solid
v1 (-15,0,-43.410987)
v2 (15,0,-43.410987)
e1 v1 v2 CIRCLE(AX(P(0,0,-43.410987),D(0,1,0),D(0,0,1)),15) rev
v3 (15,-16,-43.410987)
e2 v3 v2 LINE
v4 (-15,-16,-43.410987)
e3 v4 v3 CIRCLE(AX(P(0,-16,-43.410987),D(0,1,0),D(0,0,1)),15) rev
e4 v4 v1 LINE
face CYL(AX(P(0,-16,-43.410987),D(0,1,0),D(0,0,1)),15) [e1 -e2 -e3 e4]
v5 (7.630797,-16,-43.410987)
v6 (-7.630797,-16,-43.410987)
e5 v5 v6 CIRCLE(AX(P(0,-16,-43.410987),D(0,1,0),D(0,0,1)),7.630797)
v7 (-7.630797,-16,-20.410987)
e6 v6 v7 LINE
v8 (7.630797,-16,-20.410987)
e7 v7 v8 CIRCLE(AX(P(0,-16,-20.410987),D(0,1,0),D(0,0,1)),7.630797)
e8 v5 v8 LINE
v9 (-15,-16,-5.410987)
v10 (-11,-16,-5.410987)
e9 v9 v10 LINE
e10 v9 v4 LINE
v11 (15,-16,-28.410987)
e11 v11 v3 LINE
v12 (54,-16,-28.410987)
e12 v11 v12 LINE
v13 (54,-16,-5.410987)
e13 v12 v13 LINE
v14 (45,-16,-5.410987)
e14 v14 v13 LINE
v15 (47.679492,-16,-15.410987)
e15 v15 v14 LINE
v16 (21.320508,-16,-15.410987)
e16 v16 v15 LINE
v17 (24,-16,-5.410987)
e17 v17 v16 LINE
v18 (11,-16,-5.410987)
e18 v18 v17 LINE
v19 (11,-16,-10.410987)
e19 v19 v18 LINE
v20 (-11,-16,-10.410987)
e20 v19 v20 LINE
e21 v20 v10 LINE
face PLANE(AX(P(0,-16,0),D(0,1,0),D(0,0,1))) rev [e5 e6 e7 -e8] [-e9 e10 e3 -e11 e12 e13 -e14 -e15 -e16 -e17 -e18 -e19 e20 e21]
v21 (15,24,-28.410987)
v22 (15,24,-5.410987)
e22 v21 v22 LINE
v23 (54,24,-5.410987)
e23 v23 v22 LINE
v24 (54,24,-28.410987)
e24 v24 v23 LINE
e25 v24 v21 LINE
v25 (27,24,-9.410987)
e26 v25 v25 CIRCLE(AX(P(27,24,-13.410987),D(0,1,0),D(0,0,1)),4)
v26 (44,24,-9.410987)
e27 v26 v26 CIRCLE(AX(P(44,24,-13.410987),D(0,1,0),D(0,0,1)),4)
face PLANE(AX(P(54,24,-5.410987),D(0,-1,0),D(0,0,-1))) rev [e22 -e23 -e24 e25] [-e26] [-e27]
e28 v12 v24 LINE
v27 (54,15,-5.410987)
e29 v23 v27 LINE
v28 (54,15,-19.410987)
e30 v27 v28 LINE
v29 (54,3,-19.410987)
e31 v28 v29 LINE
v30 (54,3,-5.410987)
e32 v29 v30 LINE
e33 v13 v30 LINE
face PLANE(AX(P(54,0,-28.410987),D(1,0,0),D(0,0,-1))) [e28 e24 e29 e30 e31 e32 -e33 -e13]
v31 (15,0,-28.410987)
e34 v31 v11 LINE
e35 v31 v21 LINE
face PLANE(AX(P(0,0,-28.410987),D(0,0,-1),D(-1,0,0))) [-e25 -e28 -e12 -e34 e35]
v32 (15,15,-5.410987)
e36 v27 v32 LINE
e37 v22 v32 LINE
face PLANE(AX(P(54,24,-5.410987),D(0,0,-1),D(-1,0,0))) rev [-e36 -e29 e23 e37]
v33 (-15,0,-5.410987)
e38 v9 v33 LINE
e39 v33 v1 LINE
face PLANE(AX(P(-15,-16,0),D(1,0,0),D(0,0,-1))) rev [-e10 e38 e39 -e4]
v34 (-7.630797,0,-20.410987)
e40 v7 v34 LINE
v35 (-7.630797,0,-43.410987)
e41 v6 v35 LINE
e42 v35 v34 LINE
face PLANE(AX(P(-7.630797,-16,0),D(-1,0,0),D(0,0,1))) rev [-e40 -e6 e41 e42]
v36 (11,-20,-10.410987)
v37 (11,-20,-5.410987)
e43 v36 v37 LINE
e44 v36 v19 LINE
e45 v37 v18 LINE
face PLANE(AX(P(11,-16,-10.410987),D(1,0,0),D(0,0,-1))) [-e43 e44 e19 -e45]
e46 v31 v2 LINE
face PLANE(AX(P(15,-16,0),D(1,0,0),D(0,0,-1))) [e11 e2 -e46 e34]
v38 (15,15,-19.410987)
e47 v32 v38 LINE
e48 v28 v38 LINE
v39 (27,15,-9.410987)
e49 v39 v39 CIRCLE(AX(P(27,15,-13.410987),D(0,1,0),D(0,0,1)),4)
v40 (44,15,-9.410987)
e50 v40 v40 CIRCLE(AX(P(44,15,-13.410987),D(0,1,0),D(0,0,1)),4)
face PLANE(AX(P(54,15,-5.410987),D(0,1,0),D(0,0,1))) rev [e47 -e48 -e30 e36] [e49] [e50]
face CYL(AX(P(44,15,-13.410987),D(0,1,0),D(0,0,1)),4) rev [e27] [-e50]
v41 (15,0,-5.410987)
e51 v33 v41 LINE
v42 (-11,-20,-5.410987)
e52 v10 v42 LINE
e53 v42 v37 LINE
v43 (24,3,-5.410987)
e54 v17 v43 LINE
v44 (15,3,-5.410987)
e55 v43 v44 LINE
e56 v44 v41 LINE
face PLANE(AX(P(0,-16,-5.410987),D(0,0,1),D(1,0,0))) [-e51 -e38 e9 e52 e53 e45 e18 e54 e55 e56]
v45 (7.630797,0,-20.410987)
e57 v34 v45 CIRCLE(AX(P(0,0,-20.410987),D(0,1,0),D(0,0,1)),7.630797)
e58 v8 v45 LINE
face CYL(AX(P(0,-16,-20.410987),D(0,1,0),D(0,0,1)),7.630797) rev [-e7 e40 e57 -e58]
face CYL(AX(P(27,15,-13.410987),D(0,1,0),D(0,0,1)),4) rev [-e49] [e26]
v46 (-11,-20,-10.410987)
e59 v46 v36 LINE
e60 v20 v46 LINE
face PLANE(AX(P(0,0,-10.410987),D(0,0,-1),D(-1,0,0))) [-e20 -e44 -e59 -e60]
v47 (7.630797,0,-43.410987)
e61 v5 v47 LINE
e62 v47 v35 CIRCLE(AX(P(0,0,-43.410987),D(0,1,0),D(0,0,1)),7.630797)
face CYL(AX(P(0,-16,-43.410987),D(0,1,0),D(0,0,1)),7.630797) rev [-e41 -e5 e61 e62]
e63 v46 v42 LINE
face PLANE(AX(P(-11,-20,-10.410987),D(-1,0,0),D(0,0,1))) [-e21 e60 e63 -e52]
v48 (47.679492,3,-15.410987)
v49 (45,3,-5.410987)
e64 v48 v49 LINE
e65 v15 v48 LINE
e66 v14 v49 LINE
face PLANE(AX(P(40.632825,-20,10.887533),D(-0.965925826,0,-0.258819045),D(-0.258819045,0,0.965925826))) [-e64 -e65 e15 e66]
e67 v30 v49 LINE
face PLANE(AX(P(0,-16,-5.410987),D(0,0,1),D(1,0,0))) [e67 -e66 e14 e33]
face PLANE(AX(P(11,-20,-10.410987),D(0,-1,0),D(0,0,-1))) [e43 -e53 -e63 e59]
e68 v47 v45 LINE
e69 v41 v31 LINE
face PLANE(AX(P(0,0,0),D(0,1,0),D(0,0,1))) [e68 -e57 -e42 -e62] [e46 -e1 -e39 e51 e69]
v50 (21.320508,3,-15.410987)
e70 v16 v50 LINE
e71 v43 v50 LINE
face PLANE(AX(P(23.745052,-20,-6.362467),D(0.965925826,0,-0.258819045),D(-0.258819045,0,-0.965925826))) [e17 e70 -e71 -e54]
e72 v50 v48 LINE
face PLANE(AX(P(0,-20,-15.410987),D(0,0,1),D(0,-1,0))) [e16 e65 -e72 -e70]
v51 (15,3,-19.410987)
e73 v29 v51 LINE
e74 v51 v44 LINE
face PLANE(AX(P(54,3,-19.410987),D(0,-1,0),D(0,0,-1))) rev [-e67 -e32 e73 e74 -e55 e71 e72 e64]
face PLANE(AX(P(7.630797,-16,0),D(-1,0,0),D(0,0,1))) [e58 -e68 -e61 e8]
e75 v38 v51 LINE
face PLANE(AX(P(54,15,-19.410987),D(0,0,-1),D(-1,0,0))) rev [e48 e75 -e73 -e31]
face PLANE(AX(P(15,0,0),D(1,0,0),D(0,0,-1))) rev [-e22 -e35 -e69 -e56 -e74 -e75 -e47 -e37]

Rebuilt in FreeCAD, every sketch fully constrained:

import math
import FreeCAD as App
import Part
import Sketcher

V = App.Vector
Q = App.Units.Quantity


def add_polygon(sketch, points):
    """Adds a closed chain of lines whose ends are joined by coincident constraints."""
    first, n = sketch.GeometryCount, len(points)
    for a, b in zip(points, points[1:] + points[:1]):
        sketch.addGeometry(Part.LineSegment(App.Vector(*a, 0), App.Vector(*b, 0)), False)
    for i in range(n):
        sketch.addConstraint(Sketcher.Constraint("Coincident", first + i, 2, first + (i + 1) % n, 1))

doc = App.newDocument("Part")
params = doc.addObject("Spreadsheet::Sheet", "Params")
for row, (alias, value) in enumerate([
    ("sketch1_radius", "15 mm"),
    ("sketch1_height", "38 mm"),
    ("sketch1_height2", "23 mm"),
    ("pad1_length", "16 mm"),
    ("sketch2_width", "9 mm"),
    ("sketch2_width2", "12 mm"),
    ("sketch2_width3", "3 mm"),
    ("sketch2_height", "14 mm"),
    ("sketch2_height2", "23 mm"),
    ("pad2_length", "39 mm"),
    ("sketch3_diameter", "8 mm"),
    ("pocket1_length", "9 mm"),
    ("sketch4_width", "39 mm"),
    ("sketch4_height", "16 mm"),
    ("pad3_length", "23 mm"),
    ("sketch5_width", "21 mm"),
    ("pocket2_length", "23 mm"),
    ("sketch6_width", "22 mm"),
    ("sketch6_height", "4 mm"),
    ("pad4_length", "5 mm"),
], start=1):
    params.set(f"A{row}", alias)
    params.set(f"B{row}", "=" + value)
    params.setAlias(f"B{row}", alias)

body = doc.addObject("PartDesign::Body", "Body")

sketch1 = doc.addObject("Sketcher::SketchObject", "Sketch")
body.addObject(sketch1)
sketch1.AttachmentSupport = (doc.XZ_Plane, [""])
sketch1.MapMode = "FlatFace"
sketch1.addGeometry([
    Part.LineSegment(V(-15, -43, 0), V(-15, -5, 0)),
    Part.LineSegment(V(-15, -5, 0), V(15, -5, 0)),
    Part.LineSegment(V(15, -5, 0), V(15, -43, 0)),
    Part.ArcOfCircle(Part.Circle(V(0, -43, 0), V(0, 0, 1), 15), math.radians(180), math.radians(360)),
    Part.LineSegment(V(8, -43, 0), V(8, -20, 0)),
    Part.ArcOfCircle(Part.Circle(V(0, -20, 0), V(0, 0, 1), 8), math.radians(0), math.radians(180)),
    Part.LineSegment(V(-8, -20, 0), V(-8, -43, 0)),
    Part.ArcOfCircle(Part.Circle(V(0, -43, 0), V(0, 0, 1), 8), math.radians(180), math.radians(360)),
], False)
sketch1.addConstraint([
    Sketcher.Constraint("Coincident", 0, 2, 1, 1),
    Sketcher.Constraint("Coincident", 1, 2, 2, 1),
    Sketcher.Constraint("Tangent", 2, 2, 3, 2),
    Sketcher.Constraint("Tangent", 3, 1, 0, 1),
    Sketcher.Constraint("Tangent", 4, 2, 5, 1),
    Sketcher.Constraint("Tangent", 5, 2, 6, 1),
    Sketcher.Constraint("Tangent", 6, 2, 7, 1),
    Sketcher.Constraint("Tangent", 7, 2, 4, 1),
    Sketcher.Constraint("Vertical", 0),
    Sketcher.Constraint("Horizontal", 1),
    Sketcher.Constraint("Vertical", 2),
    Sketcher.Constraint("Vertical", 4),
    Sketcher.Constraint("Vertical", 6),
    Sketcher.Constraint("Coincident", 7, 3, 3, 3),
    Sketcher.Constraint("PointOnObject", 3, 3, -2),
    Sketcher.Constraint("Radius", 3, Q("15 mm")),
    Sketcher.Constraint("DistanceY", 0, 1, 0, 2, Q("38 mm")),
    Sketcher.Constraint("DistanceY", 4, 1, 4, 2, Q("23 mm")),
    Sketcher.Constraint("Radius", 5, Q("7.630797 mm")),
    Sketcher.Constraint("DistanceY", 3, 3, -1, 1, Q("43.410987 mm")),
])
sketch1.setExpression("Constraints[15]", "Params.sketch1_radius")
sketch1.setExpression("Constraints[16]", "Params.sketch1_height")
sketch1.setExpression("Constraints[17]", "Params.sketch1_height2")
pad1 = doc.addObject("PartDesign::Pad", "Pad")
body.addObject(pad1)
pad1.Profile = sketch1
pad1.setExpression("Length", "Params.pad1_length")
body2 = doc.addObject("PartDesign::Body", "Body001")

sketch2 = doc.addObject("Sketcher::SketchObject", "Sketch001")
body2.addObject(sketch2)
sketch2.AttachmentSupport = (doc.getObject("YZ_Plane001"), [""])
sketch2.MapMode = "FlatFace"
sketch2.AttachmentOffset = App.Placement(V(0, 0, 15), App.Rotation())
add_polygon(sketch2, [(24, -5.4), (15, -5.4), (15, -19.4), (3, -19.4), (3, -5.4), (0, -5.4), (0, -28.4), (24, -28.4)])
sketch2.addConstraint([
    Sketcher.Constraint("Horizontal", 0),
    Sketcher.Constraint("Vertical", 1),
    Sketcher.Constraint("Horizontal", 2),
    Sketcher.Constraint("Vertical", 3),
    Sketcher.Constraint("Horizontal", 4),
    Sketcher.Constraint("Vertical", 5),
    Sketcher.Constraint("Horizontal", 6),
    Sketcher.Constraint("Vertical", 7),
    Sketcher.Constraint("PointOnObject", 4, 2, -2),
    Sketcher.Constraint("Horizontal", 0, 2, 3, 2),
    Sketcher.Constraint("DistanceX", 0, 2, 0, 1, Q("9 mm")),
    Sketcher.Constraint("DistanceX", 2, 2, 2, 1, Q("12 mm")),
    Sketcher.Constraint("DistanceX", 4, 2, 4, 1, Q("3 mm")),
    Sketcher.Constraint("DistanceY", 1, 2, 1, 1, Q("14 mm")),
    Sketcher.Constraint("DistanceY", 5, 2, 5, 1, Q("23 mm")),
    Sketcher.Constraint("DistanceY", 0, 2, -1, 1, Q("5.410987 mm")),
])
sketch2.setExpression("Constraints[18]", "Params.sketch2_width")
sketch2.setExpression("Constraints[19]", "Params.sketch2_width2")
sketch2.setExpression("Constraints[20]", "Params.sketch2_width3")
sketch2.setExpression("Constraints[21]", "Params.sketch2_height")
sketch2.setExpression("Constraints[22]", "Params.sketch2_height2")
pad2 = doc.addObject("PartDesign::Pad", "Pad001")
body2.addObject(pad2)
pad2.Profile = sketch2
pad2.setExpression("Length", "Params.pad2_length")

sketch3 = doc.addObject("Sketcher::SketchObject", "Sketch002")
body2.addObject(sketch3)
sketch3.AttachmentSupport = (doc.getObject("XZ_Plane001"), [""])
sketch3.MapMode = "FlatFace"
sketch3.AttachmentOffset = App.Placement(V(0, 0, -24), App.Rotation())
sketch3.addGeometry([
    Part.Circle(V(27, -13.4, 0), V(0, 0, 1), 4),
    Part.Circle(V(44, -13.4, 0), V(0, 0, 1), 4),
], False)
sketch3.addConstraint([
    Sketcher.Constraint("Equal", 0, 1),
    Sketcher.Constraint("Horizontal", 0, 3, 1, 3),
    Sketcher.Constraint("Diameter", 0, Q("8 mm")),
    Sketcher.Constraint("DistanceX", -1, 1, 0, 3, Q("27 mm")),
    Sketcher.Constraint("DistanceX", -1, 1, 1, 3, Q("44 mm")),
    Sketcher.Constraint("DistanceY", 0, 3, -1, 1, Q("13.410987 mm")),
])
sketch3.setExpression("Constraints[2]", "Params.sketch3_diameter")
pocket1 = doc.addObject("PartDesign::Pocket", "Pocket")
body2.addObject(pocket1)
pocket1.Profile = sketch3
pocket1.setExpression("Length", "Params.pocket1_length")
pocket1.Reversed = True
body.AllowCompound = True
doc.recompute()

boolean = doc.addObject("PartDesign::Boolean", "Boolean")
body.addObject(boolean)
boolean.Type = "Fuse"
boolean.addObjects([body2])

sketch4 = doc.addObject("Sketcher::SketchObject", "Sketch003")
body.addObject(sketch4)
sketch4.AttachmentSupport = (doc.XY_Plane, [""])
sketch4.MapMode = "FlatFace"
sketch4.AttachmentOffset = App.Placement(V(0, 0, -5.410987), App.Rotation())
add_polygon(sketch4, [(15, 0), (15, -16), (54, -16), (54, 0)])
sketch4.addConstraint([
    Sketcher.Constraint("Vertical", 0),
    Sketcher.Constraint("Horizontal", 1),
    Sketcher.Constraint("Vertical", 2),
    Sketcher.Constraint("Horizontal", 3),
    Sketcher.Constraint("PointOnObject", 2, 2, -1),
    Sketcher.Constraint("DistanceX", 1, 1, 1, 2, Q("39 mm")),
    Sketcher.Constraint("DistanceY", 0, 2, 0, 1, Q("16 mm")),
    Sketcher.Constraint("DistanceX", -1, 1, 0, 2, Q("15 mm")),
])
sketch4.setExpression("Constraints[9]", "Params.sketch4_width")
sketch4.setExpression("Constraints[10]", "Params.sketch4_height")
pad3 = doc.addObject("PartDesign::Pad", "Pad002")
body.addObject(pad3)
pad3.Profile = sketch4
pad3.setExpression("Length", "Params.pad3_length")
pad3.Reversed = True

sketch5 = doc.addObject("Sketcher::SketchObject", "Sketch004")
body.addObject(sketch5)
sketch5.AttachmentSupport = (doc.XZ_Plane, [""])
sketch5.MapMode = "FlatFace"
sketch5.AttachmentOffset = App.Placement(V(0, 0, -3), App.Rotation())
add_polygon(sketch5, [(21, -15), (24, -5), (45, -5), (48, -15)])
sketch5.addConstraint([
    Sketcher.Constraint("Horizontal", 1),
    Sketcher.Constraint("Horizontal", 3),
    Sketcher.Constraint("Equal", 0, 2),
    Sketcher.Constraint("DistanceX", 1, 1, 1, 2, Q("21 mm")),
    Sketcher.Constraint("Angle", 0, Q("75 deg")),
    Sketcher.Constraint("DistanceX", -1, 1, 0, 2, Q("24 mm")),
    Sketcher.Constraint("DistanceY", 2, 2, 1, 2, Q("10 mm")),
    Sketcher.Constraint("DistanceY", 0, 2, -1, 1, Q("5.410987 mm")),
])
sketch5.setExpression("Constraints[7]", "Params.sketch5_width")
pocket2 = doc.addObject("PartDesign::Pocket", "Pocket001")
body.addObject(pocket2)
pocket2.Profile = sketch5
pocket2.setExpression("Length", "Params.pocket2_length")
pocket2.Reversed = True

sketch6 = doc.addObject("Sketcher::SketchObject", "Sketch005")
body.addObject(sketch6)
sketch6.AttachmentSupport = (doc.XY_Plane, [""])
sketch6.MapMode = "FlatFace"
sketch6.AttachmentOffset = App.Placement(V(0, 0, -5.410987), App.Rotation())
add_polygon(sketch6, [(-11, -16), (-11, -20), (11, -20), (11, -16)])
sketch6.addConstraint([
    Sketcher.Constraint("Vertical", 0),
    Sketcher.Constraint("Horizontal", 1),
    Sketcher.Constraint("Vertical", 2),
    Sketcher.Constraint("Horizontal", 3),
    Sketcher.Constraint("DistanceX", 1, 1, 1, 2, Q("22 mm")),
    Sketcher.Constraint("DistanceY", 0, 2, 0, 1, Q("4 mm")),
    Sketcher.Constraint("DistanceX", 0, 2, -1, 1, Q("11 mm")),
    Sketcher.Constraint("DistanceY", 0, 2, -1, 1, Q("20 mm")),
])
sketch6.setExpression("Constraints[8]", "Params.sketch6_width")
sketch6.setExpression("Constraints[9]", "Params.sketch6_height")
pad4 = doc.addObject("PartDesign::Pad", "Pad003")
body.addObject(pad4)
pad4.Profile = sketch6
pad4.setExpression("Length", "Params.pad4_length")
pad4.Reversed = True

doc.recompute()
